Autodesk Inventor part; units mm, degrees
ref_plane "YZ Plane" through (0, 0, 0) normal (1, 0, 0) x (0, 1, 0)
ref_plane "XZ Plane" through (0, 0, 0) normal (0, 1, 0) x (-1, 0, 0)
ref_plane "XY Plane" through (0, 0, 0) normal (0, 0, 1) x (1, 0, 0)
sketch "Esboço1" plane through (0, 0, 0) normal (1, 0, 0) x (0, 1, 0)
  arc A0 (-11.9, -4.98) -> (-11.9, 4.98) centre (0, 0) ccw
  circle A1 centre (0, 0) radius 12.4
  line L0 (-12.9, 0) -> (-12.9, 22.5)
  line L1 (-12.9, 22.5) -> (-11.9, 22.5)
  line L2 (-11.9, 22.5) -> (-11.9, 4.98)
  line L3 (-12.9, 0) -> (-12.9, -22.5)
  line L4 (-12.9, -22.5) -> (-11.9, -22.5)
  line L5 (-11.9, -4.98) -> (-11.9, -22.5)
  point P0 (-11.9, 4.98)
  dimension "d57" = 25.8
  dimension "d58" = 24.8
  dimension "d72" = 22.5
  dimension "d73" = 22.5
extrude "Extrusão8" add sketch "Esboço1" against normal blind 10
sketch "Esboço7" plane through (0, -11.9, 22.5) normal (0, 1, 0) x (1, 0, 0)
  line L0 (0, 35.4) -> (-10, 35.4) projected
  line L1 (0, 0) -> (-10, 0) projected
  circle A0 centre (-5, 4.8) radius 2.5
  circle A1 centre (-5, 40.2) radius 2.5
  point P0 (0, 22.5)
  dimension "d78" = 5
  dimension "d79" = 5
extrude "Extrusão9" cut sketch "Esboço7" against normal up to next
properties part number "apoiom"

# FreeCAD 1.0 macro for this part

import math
import FreeCAD as App
import Part
import Sketcher
Q = App.Units.Quantity

doc = App.newDocument("Part")
body = doc.addObject("PartDesign::Body", "Body")

sketch1 = body.newObject("Sketcher::SketchObject", "Sketch")
sketch1.AttachmentSupport = (doc.getObject("YZ_Plane"), [""])
sketch1.MapMode = "FlatFace"
sketch1.addGeometry([
    Part.LineSegment(App.Vector(-11.9, -22.5, 0), App.Vector(-11.9, -5, 0)),
    Part.ArcOfCircle(Part.Circle(App.Vector(0, 0, 0), App.Vector(0, 0, 1), 12.9), math.radians(-157), math.radians(157)),
    Part.LineSegment(App.Vector(-11.9, 5, 0), App.Vector(-11.9, 22.5, 0)),
    Part.LineSegment(App.Vector(-11.9, 22.5, 0), App.Vector(-12.9, 22.5, 0)),
    Part.LineSegment(App.Vector(-12.9, 22.5, 0), App.Vector(-12.9, -22.5, 0)),
    Part.LineSegment(App.Vector(-12.9, -22.5, 0), App.Vector(-11.9, -22.5, 0)),
    Part.Circle(App.Vector(0, 0, 0), App.Vector(0, 0, 1), 12.4),
], False)
sketch1.addConstraint([
    Sketcher.Constraint("Coincident", 0, 2, 1, 1),
    Sketcher.Constraint("Coincident", 1, 2, 2, 1),
    Sketcher.Constraint("Coincident", 2, 2, 3, 1),
    Sketcher.Constraint("Coincident", 3, 2, 4, 1),
    Sketcher.Constraint("Coincident", 4, 2, 5, 1),
    Sketcher.Constraint("Coincident", 5, 2, 0, 1),
    Sketcher.Constraint("Vertical", 0),
    Sketcher.Constraint("Vertical", 2),
    Sketcher.Constraint("Horizontal", 3),
    Sketcher.Constraint("Vertical", 4),
    Sketcher.Constraint("Horizontal", 5),
    Sketcher.Constraint("Coincident", 1, 3, -1, 1),
    Sketcher.Constraint("Coincident", 6, 3, -1, 1),
    Sketcher.Constraint("Symmetric", 2, 2, 5, 2, -1),
    Sketcher.Constraint("Diameter", 6, Q("24.8 mm")),
    Sketcher.Constraint("Radius", 1, Q("12.9 mm")),
    Sketcher.Constraint("DistanceY", -1, 1, 2, 2, Q("22.5 mm")),
    Sketcher.Constraint("DistanceX", 3, 2, 3, 1, Q("1 mm")),
    Sketcher.Constraint("DistanceY", 0, 1, 0, 2, Q("17.52 mm")),
])
pad1 = body.newObject("PartDesign::Pad", "Pad")
pad1.Profile = sketch1
pad1.Length = 10
pad1.Reversed = True

sketch2 = body.newObject("Sketcher::SketchObject", "Sketch001")
sketch2.AttachmentSupport = (doc.getObject("XZ_Plane"), [""])
sketch2.MapMode = "FlatFace"
sketch2.AttachmentOffset = App.Placement(App.Vector(0, 0, 11.9), App.Rotation())
sketch2.addGeometry([
    Part.Circle(App.Vector(-5, 17.7, 0), App.Vector(0, 0, 1), 2.5),
    Part.Circle(App.Vector(-5, -17.7, 0), App.Vector(0, 0, 1), 2.5),
], False)
sketch2.addConstraint([
    Sketcher.Constraint("Equal", 0, 1),
    Sketcher.Constraint("Symmetric", 0, 3, 1, 3, -1),
    Sketcher.Constraint("Diameter", 0, Q("5 mm")),
    Sketcher.Constraint("DistanceX", 0, 3, -1, 1, Q("5 mm")),
    Sketcher.Constraint("DistanceY", -1, 1, 0, 3, Q("17.7 mm")),
])
pocket1 = body.newObject("PartDesign::Pocket", "Pocket")
pocket1.Profile = sketch2
pocket1.Length = 1
pocket1.Reversed = True

doc.recompute()
